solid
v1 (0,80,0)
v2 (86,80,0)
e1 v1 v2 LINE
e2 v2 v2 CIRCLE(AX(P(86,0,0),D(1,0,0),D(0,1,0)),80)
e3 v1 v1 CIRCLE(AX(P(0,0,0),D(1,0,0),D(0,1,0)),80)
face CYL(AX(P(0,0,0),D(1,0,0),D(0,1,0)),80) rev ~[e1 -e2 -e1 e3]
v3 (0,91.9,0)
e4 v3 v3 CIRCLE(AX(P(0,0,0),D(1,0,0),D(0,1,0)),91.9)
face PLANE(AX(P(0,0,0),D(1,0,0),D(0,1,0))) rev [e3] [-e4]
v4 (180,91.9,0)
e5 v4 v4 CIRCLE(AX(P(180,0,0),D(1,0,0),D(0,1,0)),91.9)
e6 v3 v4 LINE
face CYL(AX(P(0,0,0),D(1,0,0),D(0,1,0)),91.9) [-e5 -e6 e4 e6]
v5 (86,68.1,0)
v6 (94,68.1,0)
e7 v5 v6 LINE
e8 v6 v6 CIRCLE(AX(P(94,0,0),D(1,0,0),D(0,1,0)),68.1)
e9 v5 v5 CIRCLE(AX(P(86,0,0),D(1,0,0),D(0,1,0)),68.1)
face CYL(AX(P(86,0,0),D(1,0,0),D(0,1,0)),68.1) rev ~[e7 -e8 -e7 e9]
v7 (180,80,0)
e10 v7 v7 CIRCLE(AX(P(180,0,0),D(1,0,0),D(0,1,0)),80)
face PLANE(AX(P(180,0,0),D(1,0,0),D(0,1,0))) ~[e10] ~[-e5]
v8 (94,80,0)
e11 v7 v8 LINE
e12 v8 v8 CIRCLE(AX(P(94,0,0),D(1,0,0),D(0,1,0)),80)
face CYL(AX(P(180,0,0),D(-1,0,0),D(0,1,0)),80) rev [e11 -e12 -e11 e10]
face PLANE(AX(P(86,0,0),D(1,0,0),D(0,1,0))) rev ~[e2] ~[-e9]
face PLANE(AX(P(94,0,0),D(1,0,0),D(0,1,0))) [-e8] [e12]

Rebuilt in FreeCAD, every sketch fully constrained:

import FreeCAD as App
import Part
import Sketcher
Q = App.Units.Quantity


def add_polygon(sketch, points):
    """Adds a closed chain of lines whose ends are joined by coincident constraints."""
    first, n = sketch.GeometryCount, len(points)
    for a, b in zip(points, points[1:] + points[:1]):
        sketch.addGeometry(Part.LineSegment(App.Vector(*a, 0), App.Vector(*b, 0)), False)
    for i in range(n):
        sketch.addConstraint(Sketcher.Constraint("Coincident", first + i, 2, first + (i + 1) % n, 1))

doc = App.newDocument("Part")
body = doc.addObject("PartDesign::Body", "Body")

sketch1 = doc.addObject("Sketcher::SketchObject", "Sketch")
body.addObject(sketch1)
sketch1.AttachmentSupport = (doc.XY_Plane, [""])
sketch1.MapMode = "FlatFace"
add_polygon(sketch1, [(0, 92), (0, 80), (86, 80), (86, 68), (94, 68), (94, 80), (180, 80), (180, 92)])
sketch1.addConstraint([
    Sketcher.Constraint("Vertical", 0),
    Sketcher.Constraint("Horizontal", 1),
    Sketcher.Constraint("Vertical", 2),
    Sketcher.Constraint("Horizontal", 3),
    Sketcher.Constraint("Vertical", 4),
    Sketcher.Constraint("Horizontal", 5),
    Sketcher.Constraint("Vertical", 6),
    Sketcher.Constraint("Horizontal", 7),
    Sketcher.Constraint("PointOnObject", 0, 2, -2),
    Sketcher.Constraint("Horizontal", 1, 2, 4, 2),
    Sketcher.Constraint("Equal", 1, 5),
    Sketcher.Constraint("Equal", 0, 2),
    Sketcher.Constraint("DistanceX", 1, 1, 1, 2, Q("86 mm")),
    Sketcher.Constraint("DistanceX", 3, 1, 3, 2, Q("8 mm")),
    Sketcher.Constraint("DistanceY", 0, 2, 0, 1, Q("11.9 mm")),
    Sketcher.Constraint("DistanceY", -1, 1, 0, 2, Q("80 mm")),
])
revolution = doc.addObject("PartDesign::Revolution", "Revolution")
body.addObject(revolution)
revolution.Profile = sketch1
revolution.ReferenceAxis = (sketch1, ["H_Axis"])
revolution.Angle = 360

doc.recompute()
